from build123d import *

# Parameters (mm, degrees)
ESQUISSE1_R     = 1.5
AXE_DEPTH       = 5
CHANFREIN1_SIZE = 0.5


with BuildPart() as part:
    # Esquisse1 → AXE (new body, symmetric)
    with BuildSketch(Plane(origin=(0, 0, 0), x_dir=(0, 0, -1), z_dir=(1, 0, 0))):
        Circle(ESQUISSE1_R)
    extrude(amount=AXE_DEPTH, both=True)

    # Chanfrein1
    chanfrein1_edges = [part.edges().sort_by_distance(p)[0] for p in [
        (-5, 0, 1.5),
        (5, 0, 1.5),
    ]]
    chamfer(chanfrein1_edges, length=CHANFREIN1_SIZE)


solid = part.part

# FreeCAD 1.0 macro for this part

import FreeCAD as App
import Part
import Sketcher

V = App.Vector


def edges_at(feature, points):
    """Names of the edges that pass closest to the given points."""
    edges = feature.Shape.Edges
    near = lambda p: min(range(len(edges)), key=lambda i: edges[i].distToShape(Part.Vertex(*p))[0])
    return sorted({f"Edge{near(p) + 1}" for p in points})

doc = App.newDocument("Part")
params = doc.addObject("Spreadsheet::Sheet", "Params")
for row, (alias, value) in enumerate([
    ("sketch1_diameter", "3 mm"),
    ("pad1_length", "10 mm"),
    ("chamfer_size", "0.5 mm"),
], start=1):
    params.set(f"A{row}", alias)
    params.set(f"B{row}", "=" + value)
    params.setAlias(f"B{row}", alias)

body = doc.addObject("PartDesign::Body", "Body")

# Sketch on YZ plane
sketch1 = doc.addObject("Sketcher::SketchObject", "Sketch")
body.addObject(sketch1)
sketch1.AttachmentSupport = (doc.YZ_Plane, [""])
sketch1.MapMode = "FlatFace"
sketch1.addGeometry(Part.Circle(V(0, 0, 0), V(0, 0, 1), 1.5), False)
sketch1.addConstraint(Sketcher.Constraint("Coincident", 0, 3, -1, 1))
sketch1.addConstraint(Sketcher.Constraint("Diameter", 0, 3.0))
sketch1.setExpression("Constraints[1]", "Params.sketch1_diameter")
pad1 = doc.addObject("PartDesign::Pad", "Pad")
body.addObject(pad1)
pad1.Profile = sketch1
pad1.setExpression("Length", "Params.pad1_length")
pad1.Midplane = True
doc.recompute()

chamfer = doc.addObject("PartDesign::Chamfer", "Chamfer")
body.addObject(chamfer)
chamfer.Base = (pad1, edges_at(pad1, [(-5, 0, 1.5), (5, 0, 1.5)]))
chamfer.setExpression("Size", "Params.chamfer_size")

doc.recompute()
